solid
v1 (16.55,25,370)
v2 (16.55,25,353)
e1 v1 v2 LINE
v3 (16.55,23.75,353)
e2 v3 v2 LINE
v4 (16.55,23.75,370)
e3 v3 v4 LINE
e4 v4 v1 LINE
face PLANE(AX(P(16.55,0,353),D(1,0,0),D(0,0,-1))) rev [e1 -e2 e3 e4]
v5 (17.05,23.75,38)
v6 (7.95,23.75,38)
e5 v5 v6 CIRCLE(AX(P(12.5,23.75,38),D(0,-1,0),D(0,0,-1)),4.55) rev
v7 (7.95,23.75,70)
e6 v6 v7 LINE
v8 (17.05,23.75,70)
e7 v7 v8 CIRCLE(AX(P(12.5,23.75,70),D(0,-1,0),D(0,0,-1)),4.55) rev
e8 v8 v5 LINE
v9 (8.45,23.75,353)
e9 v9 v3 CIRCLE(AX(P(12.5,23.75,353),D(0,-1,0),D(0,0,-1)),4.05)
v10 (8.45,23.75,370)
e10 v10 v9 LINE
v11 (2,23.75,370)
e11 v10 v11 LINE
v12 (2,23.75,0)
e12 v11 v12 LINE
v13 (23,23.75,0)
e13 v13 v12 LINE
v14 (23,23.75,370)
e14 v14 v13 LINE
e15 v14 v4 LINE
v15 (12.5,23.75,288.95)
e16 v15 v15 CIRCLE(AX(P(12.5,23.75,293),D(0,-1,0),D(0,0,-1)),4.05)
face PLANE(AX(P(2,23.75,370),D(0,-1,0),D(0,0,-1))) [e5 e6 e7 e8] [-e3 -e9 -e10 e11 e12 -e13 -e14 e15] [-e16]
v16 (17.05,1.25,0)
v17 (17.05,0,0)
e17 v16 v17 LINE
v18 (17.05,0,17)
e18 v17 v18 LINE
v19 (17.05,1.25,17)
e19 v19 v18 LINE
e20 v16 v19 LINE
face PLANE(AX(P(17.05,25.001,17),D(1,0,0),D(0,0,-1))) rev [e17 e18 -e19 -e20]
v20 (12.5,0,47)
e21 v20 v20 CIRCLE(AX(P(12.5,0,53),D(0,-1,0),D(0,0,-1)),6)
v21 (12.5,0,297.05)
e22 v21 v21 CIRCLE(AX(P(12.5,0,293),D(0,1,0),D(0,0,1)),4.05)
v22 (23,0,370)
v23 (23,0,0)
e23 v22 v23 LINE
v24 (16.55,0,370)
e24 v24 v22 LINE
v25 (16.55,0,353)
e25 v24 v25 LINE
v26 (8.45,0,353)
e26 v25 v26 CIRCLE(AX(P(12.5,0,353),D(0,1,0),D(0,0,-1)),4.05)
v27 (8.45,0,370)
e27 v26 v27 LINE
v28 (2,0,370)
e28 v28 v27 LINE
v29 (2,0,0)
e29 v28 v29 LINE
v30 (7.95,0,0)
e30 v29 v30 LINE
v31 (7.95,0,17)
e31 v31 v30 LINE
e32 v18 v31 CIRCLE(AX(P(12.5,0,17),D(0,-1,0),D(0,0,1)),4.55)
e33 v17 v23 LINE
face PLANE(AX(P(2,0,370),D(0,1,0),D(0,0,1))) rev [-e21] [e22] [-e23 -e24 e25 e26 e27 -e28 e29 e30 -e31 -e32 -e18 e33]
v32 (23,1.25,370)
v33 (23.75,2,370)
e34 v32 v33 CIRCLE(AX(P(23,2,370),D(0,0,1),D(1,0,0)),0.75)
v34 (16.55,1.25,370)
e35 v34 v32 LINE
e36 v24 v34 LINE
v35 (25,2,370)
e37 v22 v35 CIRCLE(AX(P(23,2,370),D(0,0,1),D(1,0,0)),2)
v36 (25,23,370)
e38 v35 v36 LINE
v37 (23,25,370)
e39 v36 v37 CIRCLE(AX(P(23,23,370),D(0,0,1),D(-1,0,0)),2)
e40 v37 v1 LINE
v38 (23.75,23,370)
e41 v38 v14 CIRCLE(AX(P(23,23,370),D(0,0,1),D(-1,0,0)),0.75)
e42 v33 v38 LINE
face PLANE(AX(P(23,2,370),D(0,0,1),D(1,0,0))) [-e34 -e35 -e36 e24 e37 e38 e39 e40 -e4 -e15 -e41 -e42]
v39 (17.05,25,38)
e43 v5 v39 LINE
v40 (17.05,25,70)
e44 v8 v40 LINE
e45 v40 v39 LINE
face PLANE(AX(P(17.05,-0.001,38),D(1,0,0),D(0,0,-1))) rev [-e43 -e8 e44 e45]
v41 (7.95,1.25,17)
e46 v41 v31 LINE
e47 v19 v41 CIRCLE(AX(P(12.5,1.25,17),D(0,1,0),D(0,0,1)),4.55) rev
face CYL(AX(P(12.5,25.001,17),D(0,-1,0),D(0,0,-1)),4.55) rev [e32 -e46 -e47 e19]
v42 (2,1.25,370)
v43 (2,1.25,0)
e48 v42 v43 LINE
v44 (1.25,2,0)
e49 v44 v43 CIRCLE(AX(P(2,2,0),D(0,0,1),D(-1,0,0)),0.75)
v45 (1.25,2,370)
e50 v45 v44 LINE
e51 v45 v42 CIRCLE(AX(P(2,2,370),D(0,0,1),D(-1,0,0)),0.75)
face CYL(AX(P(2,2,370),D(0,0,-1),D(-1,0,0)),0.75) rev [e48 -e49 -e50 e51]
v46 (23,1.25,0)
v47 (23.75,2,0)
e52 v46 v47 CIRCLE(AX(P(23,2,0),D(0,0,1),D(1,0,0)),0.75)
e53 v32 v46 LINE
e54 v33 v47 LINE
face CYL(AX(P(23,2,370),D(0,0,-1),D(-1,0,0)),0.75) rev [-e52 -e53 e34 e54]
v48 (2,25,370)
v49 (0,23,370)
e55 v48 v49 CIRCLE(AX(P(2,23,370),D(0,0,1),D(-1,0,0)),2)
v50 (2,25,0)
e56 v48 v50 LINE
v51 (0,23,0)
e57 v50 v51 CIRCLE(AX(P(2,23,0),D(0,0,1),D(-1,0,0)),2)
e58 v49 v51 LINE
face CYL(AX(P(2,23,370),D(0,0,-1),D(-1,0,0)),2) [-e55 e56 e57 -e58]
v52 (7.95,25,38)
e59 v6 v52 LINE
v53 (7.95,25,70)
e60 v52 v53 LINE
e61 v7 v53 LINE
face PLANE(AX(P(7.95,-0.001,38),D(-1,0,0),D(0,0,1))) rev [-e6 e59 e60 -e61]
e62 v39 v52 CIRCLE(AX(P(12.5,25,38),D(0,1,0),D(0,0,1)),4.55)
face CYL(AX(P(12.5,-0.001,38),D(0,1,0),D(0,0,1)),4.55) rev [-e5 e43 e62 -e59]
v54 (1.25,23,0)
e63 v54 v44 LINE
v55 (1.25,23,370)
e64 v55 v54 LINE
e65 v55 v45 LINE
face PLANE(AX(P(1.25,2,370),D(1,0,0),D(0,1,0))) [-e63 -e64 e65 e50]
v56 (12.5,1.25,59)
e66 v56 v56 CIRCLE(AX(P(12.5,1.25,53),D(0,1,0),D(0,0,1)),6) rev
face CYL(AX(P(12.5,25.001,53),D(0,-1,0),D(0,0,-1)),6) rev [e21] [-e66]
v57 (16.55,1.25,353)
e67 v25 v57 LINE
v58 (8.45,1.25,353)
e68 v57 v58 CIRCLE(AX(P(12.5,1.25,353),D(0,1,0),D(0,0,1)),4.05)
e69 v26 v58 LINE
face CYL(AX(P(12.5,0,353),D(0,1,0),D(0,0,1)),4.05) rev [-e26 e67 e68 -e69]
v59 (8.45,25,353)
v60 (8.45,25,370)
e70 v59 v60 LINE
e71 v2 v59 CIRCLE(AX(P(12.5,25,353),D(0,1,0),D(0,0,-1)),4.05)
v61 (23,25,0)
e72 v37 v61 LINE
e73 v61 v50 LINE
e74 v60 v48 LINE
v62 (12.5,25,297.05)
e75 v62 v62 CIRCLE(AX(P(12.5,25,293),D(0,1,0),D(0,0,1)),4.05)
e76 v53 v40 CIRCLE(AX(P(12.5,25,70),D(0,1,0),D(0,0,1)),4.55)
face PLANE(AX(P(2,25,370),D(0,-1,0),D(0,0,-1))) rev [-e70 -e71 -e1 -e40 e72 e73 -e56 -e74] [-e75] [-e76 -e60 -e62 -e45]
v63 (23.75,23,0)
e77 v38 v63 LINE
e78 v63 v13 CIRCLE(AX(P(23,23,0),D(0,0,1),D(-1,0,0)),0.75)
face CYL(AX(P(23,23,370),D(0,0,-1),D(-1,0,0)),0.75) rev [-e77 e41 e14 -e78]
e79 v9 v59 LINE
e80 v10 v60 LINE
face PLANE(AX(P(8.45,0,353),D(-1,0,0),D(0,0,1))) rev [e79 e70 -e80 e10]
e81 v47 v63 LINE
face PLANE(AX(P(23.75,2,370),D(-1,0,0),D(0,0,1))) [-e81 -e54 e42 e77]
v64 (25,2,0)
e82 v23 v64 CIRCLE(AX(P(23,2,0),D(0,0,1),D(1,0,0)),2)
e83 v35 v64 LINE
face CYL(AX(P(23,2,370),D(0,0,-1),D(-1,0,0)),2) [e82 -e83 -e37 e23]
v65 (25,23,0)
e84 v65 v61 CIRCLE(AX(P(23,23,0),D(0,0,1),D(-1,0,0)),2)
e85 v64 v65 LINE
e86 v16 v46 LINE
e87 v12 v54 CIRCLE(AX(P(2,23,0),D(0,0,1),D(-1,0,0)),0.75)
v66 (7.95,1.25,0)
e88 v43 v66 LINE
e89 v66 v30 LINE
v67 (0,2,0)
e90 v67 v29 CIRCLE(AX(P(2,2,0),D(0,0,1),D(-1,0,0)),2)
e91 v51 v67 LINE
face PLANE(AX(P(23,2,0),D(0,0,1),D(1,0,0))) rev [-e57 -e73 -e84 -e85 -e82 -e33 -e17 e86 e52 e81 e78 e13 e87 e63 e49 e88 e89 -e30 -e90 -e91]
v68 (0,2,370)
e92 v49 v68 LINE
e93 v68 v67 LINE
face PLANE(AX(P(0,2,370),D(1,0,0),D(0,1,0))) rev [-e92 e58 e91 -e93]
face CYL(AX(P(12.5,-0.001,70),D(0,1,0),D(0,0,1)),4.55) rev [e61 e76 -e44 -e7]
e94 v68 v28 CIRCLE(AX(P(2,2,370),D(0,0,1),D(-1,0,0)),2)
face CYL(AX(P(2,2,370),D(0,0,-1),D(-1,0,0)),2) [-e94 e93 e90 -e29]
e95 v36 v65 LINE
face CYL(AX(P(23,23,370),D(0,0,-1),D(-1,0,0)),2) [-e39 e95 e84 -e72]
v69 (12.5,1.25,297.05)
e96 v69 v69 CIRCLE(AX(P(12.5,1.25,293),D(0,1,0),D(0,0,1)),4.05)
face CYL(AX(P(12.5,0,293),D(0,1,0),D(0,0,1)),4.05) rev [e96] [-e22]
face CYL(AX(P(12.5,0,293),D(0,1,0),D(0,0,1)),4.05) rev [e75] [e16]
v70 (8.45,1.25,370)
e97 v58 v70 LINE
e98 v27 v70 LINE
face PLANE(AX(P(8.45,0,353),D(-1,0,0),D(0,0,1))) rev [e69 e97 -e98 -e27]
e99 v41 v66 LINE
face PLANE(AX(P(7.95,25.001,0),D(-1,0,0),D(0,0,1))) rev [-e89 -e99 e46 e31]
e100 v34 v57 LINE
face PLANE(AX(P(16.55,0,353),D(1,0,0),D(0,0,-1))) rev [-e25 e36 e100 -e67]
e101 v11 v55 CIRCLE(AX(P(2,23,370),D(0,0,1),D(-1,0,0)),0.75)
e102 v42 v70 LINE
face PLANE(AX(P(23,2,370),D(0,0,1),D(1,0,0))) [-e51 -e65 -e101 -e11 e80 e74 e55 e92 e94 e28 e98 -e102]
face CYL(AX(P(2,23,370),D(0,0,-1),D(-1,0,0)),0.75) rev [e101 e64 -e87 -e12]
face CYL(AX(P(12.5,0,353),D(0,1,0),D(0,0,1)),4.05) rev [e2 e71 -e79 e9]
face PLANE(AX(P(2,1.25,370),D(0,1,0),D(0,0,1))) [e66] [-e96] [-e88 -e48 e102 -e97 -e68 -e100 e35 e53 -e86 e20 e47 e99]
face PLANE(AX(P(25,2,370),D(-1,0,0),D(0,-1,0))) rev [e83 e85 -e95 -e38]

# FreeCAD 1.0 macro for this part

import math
import FreeCAD as App
import Part
import Sketcher

V = App.Vector
Q = App.Units.Quantity

doc = App.newDocument("Part")
body = doc.addObject("PartDesign::Body", "Body")

sketch1 = body.newObject("Sketcher::SketchObject", "Sketch")
sketch1.AttachmentSupport = (doc.getObject("XY_Plane"), [""])
sketch1.MapMode = "FlatFace"
sketch1.addGeometry([
    Part.LineSegment(V(2, 0, 0), V(23, 0, 0)),
    Part.ArcOfCircle(Part.Circle(V(23, 2, 0), V(0, 0, 1), 2), math.radians(-90), math.radians(0)),
    Part.LineSegment(V(25, 2, 0), V(25, 23, 0)),
    Part.ArcOfCircle(Part.Circle(V(23, 23, 0), V(0, 0, 1), 2), math.radians(0), math.radians(90)),
    Part.LineSegment(V(23, 25, 0), V(2, 25, 0)),
    Part.ArcOfCircle(Part.Circle(V(2, 23, 0), V(0, 0, 1), 2), math.radians(90), math.radians(180)),
    Part.LineSegment(V(0, 23, 0), V(0, 2, 0)),
    Part.ArcOfCircle(Part.Circle(V(2, 2, 0), V(0, 0, 1), 2), math.radians(-180), math.radians(-90)),
    Part.LineSegment(V(23, 1.25, 0), V(2, 1.25, 0)),
    Part.ArcOfCircle(Part.Circle(V(2, 2, 0), V(0, 0, 1), 0.75), math.radians(180), math.radians(270)),
    Part.LineSegment(V(1.25, 2, 0), V(1.25, 23, 0)),
    Part.ArcOfCircle(Part.Circle(V(2, 23, 0), V(0, 0, 1), 0.75), math.radians(90), math.radians(180)),
    Part.LineSegment(V(2, 23.75, 0), V(23, 23.75, 0)),
    Part.ArcOfCircle(Part.Circle(V(23, 23, 0), V(0, 0, 1), 0.75), math.radians(0), math.radians(90)),
    Part.LineSegment(V(23.75, 23, 0), V(23.75, 2, 0)),
    Part.ArcOfCircle(Part.Circle(V(23, 2, 0), V(0, 0, 1), 0.75), math.radians(-90), math.radians(0)),
], False)
sketch1.addConstraint([
    Sketcher.Constraint("Tangent", 0, 2, 1, 1),
    Sketcher.Constraint("Tangent", 1, 2, 2, 1),
    Sketcher.Constraint("Tangent", 2, 2, 3, 1),
    Sketcher.Constraint("Tangent", 3, 2, 4, 1),
    Sketcher.Constraint("Tangent", 4, 2, 5, 1),
    Sketcher.Constraint("Tangent", 5, 2, 6, 1),
    Sketcher.Constraint("Tangent", 6, 2, 7, 1),
    Sketcher.Constraint("Tangent", 7, 2, 0, 1),
    Sketcher.Constraint("Tangent", 8, 2, 9, 2),
    Sketcher.Constraint("Tangent", 9, 1, 10, 1),
    Sketcher.Constraint("Tangent", 10, 2, 11, 2),
    Sketcher.Constraint("Tangent", 11, 1, 12, 1),
    Sketcher.Constraint("Tangent", 12, 2, 13, 2),
    Sketcher.Constraint("Tangent", 13, 1, 14, 1),
    Sketcher.Constraint("Tangent", 14, 2, 15, 2),
    Sketcher.Constraint("Tangent", 15, 1, 8, 1),
    Sketcher.Constraint("Horizontal", 0),
    Sketcher.Constraint("Vertical", 2),
    Sketcher.Constraint("Horizontal", 4),
    Sketcher.Constraint("Vertical", 6),
    Sketcher.Constraint("Horizontal", 8),
    Sketcher.Constraint("Vertical", 10),
    Sketcher.Constraint("Horizontal", 12),
    Sketcher.Constraint("Vertical", 14),
    Sketcher.Constraint("Coincident", 9, 3, 7, 3),
    Sketcher.Constraint("Coincident", 11, 3, 5, 3),
    Sketcher.Constraint("Coincident", 13, 3, 3, 3),
    Sketcher.Constraint("Equal", 1, 3),
    Sketcher.Constraint("Equal", 3, 5),
    Sketcher.Constraint("Equal", 5, 7),
    Sketcher.Constraint("Equal", 13, 15),
    Sketcher.Constraint("PointOnObject", 0, 2, -1),
    Sketcher.Constraint("PointOnObject", 5, 2, -2),
    Sketcher.Constraint("Equal", 12, 2),
    Sketcher.Constraint("Radius", 1, Q("2 mm")),
    Sketcher.Constraint("DistanceX", 0, 1, 0, 2, Q("21 mm")),
    Sketcher.Constraint("Radius", 9, Q("0.75 mm")),
])
pad1 = body.newObject("PartDesign::Pad", "Pad")
pad1.Profile = sketch1
pad1.Length = 370

sketch2 = body.newObject("Sketcher::SketchObject", "Sketch001")
sketch2.AttachmentSupport = (doc.getObject("XZ_Plane"), [""])
sketch2.MapMode = "FlatFace"
sketch2.AttachmentOffset = App.Placement(V(0, 0, -25), App.Rotation())
sketch2.addGeometry([
    Part.Circle(V(12.5, 293, 0), V(0, 0, 1), 4.05),
    Part.LineSegment(V(8.45, 353, 0), V(8.45, 370, 0)),
    Part.LineSegment(V(8.45, 370, 0), V(16.55, 370, 0)),
    Part.LineSegment(V(16.55, 370, 0), V(16.55, 353, 0)),
    Part.ArcOfCircle(Part.Circle(V(12.5, 353, 0), V(0, 0, 1), 4.05), math.radians(180), math.radians(360)),
], False)
sketch2.addConstraint([
    Sketcher.Constraint("Coincident", 1, 2, 2, 1),
    Sketcher.Constraint("Coincident", 2, 2, 3, 1),
    Sketcher.Constraint("Tangent", 3, 2, 4, 2),
    Sketcher.Constraint("Tangent", 4, 1, 1, 1),
    Sketcher.Constraint("Vertical", 1),
    Sketcher.Constraint("Horizontal", 2),
    Sketcher.Constraint("Vertical", 3),
    Sketcher.Constraint("Equal", 0, 4),
    Sketcher.Constraint("Vertical", 0, 3, 4, 3),
    Sketcher.Constraint("Diameter", 0, Q("8.1 mm")),
    Sketcher.Constraint("DistanceY", 1, 1, 1, 2, Q("17 mm")),
    Sketcher.Constraint("DistanceY", -1, 1, 0, 3, Q("293 mm")),
    Sketcher.Constraint("DistanceY", -1, 1, 4, 3, Q("353 mm")),
    Sketcher.Constraint("DistanceX", -1, 1, 0, 3, Q("12.5 mm")),
])
pocket1 = body.newObject("PartDesign::Pocket", "Pocket")
pocket1.Profile = sketch2
pocket1.Type = "ThroughAll"
pocket1.Reversed = True

sketch3 = body.newObject("Sketcher::SketchObject", "Sketch002")
sketch3.AttachmentSupport = (doc.getObject("XZ_Plane"), [""])
sketch3.MapMode = "FlatFace"
sketch3.AttachmentOffset = App.Placement(V(0, 0, -25), App.Rotation())
sketch3.addGeometry([
    Part.LineSegment(V(17.05, 70, 0), V(17.05, 38, 0)),
    Part.ArcOfCircle(Part.Circle(V(12.5, 38, 0), V(0, 0, 1), 4.55), math.radians(180), math.radians(360)),
    Part.LineSegment(V(7.95, 38, 0), V(7.95, 70, 0)),
    Part.ArcOfCircle(Part.Circle(V(12.5, 70, 0), V(0, 0, 1), 4.55), math.radians(0), math.radians(180)),
], False)
sketch3.addConstraint([
    Sketcher.Constraint("Tangent", 0, 2, 1, 2),
    Sketcher.Constraint("Tangent", 1, 1, 2, 1),
    Sketcher.Constraint("Tangent", 2, 2, 3, 2),
    Sketcher.Constraint("Tangent", 3, 1, 0, 1),
    Sketcher.Constraint("Vertical", 0),
    Sketcher.Constraint("Vertical", 2),
    Sketcher.Constraint("DistanceY", 0, 2, 0, 1, Q("32 mm")),
    Sketcher.Constraint("Radius", 1, Q("4.55 mm")),
    Sketcher.Constraint("DistanceY", -1, 1, 1, 3, Q("38 mm")),
    Sketcher.Constraint("DistanceX", -1, 1, 1, 3, Q("12.5 mm")),
])
pocket2 = body.newObject("PartDesign::Pocket", "Pocket001")
pocket2.Profile = sketch3
pocket2.Type = "UpToFirst"
pocket2.Reversed = True

sketch4 = body.newObject("Sketcher::SketchObject", "Sketch003")
sketch4.AttachmentSupport = (doc.getObject("XZ_Plane"), [""])
sketch4.MapMode = "FlatFace"
sketch4.addGeometry(Part.Circle(V(12.5, 53, 0), V(0, 0, 1), 6), False)
sketch4.addConstraint([
    Sketcher.Constraint("Diameter", 0, Q("12 mm")),
    Sketcher.Constraint("DistanceY", -1, 1, 0, 3, Q("53 mm")),
    Sketcher.Constraint("DistanceX", -1, 1, 0, 3, Q("12.5 mm")),
])
pocket3 = body.newObject("PartDesign::Pocket", "Pocket002")
pocket3.Profile = sketch4
pocket3.Type = "UpToFirst"

sketch5 = body.newObject("Sketcher::SketchObject", "Sketch004")
sketch5.AttachmentSupport = (doc.getObject("XZ_Plane"), [""])
sketch5.MapMode = "FlatFace"
sketch5.addGeometry([
    Part.LineSegment(V(7.95, 17, 0), V(7.95, 0, 0)),
    Part.LineSegment(V(7.95, 0, 0), V(17.05, 0, 0)),
    Part.LineSegment(V(17.05, 0, 0), V(17.05, 17, 0)),
    Part.ArcOfCircle(Part.Circle(V(12.5, 17, 0), V(0, 0, 1), 4.55), math.radians(0), math.radians(180)),
], False)
sketch5.addConstraint([
    Sketcher.Constraint("Coincident", 0, 2, 1, 1),
    Sketcher.Constraint("Coincident", 1, 2, 2, 1),
    Sketcher.Constraint("Tangent", 2, 2, 3, 1),
    Sketcher.Constraint("Tangent", 3, 2, 0, 1),
    Sketcher.Constraint("Vertical", 0),
    Sketcher.Constraint("Horizontal", 1),
    Sketcher.Constraint("Vertical", 2),
    Sketcher.Constraint("PointOnObject", 0, 2, -1),
    Sketcher.Constraint("DistanceY", 0, 2, 0, 1, Q("17 mm")),
    Sketcher.Constraint("Radius", 3, Q("4.55 mm")),
    Sketcher.Constraint("DistanceX", -1, 1, 3, 3, Q("12.5 mm")),
])
pocket4 = body.newObject("PartDesign::Pocket", "Pocket003")
pocket4.Profile = sketch5
pocket4.Type = "UpToFirst"

doc.recompute()
